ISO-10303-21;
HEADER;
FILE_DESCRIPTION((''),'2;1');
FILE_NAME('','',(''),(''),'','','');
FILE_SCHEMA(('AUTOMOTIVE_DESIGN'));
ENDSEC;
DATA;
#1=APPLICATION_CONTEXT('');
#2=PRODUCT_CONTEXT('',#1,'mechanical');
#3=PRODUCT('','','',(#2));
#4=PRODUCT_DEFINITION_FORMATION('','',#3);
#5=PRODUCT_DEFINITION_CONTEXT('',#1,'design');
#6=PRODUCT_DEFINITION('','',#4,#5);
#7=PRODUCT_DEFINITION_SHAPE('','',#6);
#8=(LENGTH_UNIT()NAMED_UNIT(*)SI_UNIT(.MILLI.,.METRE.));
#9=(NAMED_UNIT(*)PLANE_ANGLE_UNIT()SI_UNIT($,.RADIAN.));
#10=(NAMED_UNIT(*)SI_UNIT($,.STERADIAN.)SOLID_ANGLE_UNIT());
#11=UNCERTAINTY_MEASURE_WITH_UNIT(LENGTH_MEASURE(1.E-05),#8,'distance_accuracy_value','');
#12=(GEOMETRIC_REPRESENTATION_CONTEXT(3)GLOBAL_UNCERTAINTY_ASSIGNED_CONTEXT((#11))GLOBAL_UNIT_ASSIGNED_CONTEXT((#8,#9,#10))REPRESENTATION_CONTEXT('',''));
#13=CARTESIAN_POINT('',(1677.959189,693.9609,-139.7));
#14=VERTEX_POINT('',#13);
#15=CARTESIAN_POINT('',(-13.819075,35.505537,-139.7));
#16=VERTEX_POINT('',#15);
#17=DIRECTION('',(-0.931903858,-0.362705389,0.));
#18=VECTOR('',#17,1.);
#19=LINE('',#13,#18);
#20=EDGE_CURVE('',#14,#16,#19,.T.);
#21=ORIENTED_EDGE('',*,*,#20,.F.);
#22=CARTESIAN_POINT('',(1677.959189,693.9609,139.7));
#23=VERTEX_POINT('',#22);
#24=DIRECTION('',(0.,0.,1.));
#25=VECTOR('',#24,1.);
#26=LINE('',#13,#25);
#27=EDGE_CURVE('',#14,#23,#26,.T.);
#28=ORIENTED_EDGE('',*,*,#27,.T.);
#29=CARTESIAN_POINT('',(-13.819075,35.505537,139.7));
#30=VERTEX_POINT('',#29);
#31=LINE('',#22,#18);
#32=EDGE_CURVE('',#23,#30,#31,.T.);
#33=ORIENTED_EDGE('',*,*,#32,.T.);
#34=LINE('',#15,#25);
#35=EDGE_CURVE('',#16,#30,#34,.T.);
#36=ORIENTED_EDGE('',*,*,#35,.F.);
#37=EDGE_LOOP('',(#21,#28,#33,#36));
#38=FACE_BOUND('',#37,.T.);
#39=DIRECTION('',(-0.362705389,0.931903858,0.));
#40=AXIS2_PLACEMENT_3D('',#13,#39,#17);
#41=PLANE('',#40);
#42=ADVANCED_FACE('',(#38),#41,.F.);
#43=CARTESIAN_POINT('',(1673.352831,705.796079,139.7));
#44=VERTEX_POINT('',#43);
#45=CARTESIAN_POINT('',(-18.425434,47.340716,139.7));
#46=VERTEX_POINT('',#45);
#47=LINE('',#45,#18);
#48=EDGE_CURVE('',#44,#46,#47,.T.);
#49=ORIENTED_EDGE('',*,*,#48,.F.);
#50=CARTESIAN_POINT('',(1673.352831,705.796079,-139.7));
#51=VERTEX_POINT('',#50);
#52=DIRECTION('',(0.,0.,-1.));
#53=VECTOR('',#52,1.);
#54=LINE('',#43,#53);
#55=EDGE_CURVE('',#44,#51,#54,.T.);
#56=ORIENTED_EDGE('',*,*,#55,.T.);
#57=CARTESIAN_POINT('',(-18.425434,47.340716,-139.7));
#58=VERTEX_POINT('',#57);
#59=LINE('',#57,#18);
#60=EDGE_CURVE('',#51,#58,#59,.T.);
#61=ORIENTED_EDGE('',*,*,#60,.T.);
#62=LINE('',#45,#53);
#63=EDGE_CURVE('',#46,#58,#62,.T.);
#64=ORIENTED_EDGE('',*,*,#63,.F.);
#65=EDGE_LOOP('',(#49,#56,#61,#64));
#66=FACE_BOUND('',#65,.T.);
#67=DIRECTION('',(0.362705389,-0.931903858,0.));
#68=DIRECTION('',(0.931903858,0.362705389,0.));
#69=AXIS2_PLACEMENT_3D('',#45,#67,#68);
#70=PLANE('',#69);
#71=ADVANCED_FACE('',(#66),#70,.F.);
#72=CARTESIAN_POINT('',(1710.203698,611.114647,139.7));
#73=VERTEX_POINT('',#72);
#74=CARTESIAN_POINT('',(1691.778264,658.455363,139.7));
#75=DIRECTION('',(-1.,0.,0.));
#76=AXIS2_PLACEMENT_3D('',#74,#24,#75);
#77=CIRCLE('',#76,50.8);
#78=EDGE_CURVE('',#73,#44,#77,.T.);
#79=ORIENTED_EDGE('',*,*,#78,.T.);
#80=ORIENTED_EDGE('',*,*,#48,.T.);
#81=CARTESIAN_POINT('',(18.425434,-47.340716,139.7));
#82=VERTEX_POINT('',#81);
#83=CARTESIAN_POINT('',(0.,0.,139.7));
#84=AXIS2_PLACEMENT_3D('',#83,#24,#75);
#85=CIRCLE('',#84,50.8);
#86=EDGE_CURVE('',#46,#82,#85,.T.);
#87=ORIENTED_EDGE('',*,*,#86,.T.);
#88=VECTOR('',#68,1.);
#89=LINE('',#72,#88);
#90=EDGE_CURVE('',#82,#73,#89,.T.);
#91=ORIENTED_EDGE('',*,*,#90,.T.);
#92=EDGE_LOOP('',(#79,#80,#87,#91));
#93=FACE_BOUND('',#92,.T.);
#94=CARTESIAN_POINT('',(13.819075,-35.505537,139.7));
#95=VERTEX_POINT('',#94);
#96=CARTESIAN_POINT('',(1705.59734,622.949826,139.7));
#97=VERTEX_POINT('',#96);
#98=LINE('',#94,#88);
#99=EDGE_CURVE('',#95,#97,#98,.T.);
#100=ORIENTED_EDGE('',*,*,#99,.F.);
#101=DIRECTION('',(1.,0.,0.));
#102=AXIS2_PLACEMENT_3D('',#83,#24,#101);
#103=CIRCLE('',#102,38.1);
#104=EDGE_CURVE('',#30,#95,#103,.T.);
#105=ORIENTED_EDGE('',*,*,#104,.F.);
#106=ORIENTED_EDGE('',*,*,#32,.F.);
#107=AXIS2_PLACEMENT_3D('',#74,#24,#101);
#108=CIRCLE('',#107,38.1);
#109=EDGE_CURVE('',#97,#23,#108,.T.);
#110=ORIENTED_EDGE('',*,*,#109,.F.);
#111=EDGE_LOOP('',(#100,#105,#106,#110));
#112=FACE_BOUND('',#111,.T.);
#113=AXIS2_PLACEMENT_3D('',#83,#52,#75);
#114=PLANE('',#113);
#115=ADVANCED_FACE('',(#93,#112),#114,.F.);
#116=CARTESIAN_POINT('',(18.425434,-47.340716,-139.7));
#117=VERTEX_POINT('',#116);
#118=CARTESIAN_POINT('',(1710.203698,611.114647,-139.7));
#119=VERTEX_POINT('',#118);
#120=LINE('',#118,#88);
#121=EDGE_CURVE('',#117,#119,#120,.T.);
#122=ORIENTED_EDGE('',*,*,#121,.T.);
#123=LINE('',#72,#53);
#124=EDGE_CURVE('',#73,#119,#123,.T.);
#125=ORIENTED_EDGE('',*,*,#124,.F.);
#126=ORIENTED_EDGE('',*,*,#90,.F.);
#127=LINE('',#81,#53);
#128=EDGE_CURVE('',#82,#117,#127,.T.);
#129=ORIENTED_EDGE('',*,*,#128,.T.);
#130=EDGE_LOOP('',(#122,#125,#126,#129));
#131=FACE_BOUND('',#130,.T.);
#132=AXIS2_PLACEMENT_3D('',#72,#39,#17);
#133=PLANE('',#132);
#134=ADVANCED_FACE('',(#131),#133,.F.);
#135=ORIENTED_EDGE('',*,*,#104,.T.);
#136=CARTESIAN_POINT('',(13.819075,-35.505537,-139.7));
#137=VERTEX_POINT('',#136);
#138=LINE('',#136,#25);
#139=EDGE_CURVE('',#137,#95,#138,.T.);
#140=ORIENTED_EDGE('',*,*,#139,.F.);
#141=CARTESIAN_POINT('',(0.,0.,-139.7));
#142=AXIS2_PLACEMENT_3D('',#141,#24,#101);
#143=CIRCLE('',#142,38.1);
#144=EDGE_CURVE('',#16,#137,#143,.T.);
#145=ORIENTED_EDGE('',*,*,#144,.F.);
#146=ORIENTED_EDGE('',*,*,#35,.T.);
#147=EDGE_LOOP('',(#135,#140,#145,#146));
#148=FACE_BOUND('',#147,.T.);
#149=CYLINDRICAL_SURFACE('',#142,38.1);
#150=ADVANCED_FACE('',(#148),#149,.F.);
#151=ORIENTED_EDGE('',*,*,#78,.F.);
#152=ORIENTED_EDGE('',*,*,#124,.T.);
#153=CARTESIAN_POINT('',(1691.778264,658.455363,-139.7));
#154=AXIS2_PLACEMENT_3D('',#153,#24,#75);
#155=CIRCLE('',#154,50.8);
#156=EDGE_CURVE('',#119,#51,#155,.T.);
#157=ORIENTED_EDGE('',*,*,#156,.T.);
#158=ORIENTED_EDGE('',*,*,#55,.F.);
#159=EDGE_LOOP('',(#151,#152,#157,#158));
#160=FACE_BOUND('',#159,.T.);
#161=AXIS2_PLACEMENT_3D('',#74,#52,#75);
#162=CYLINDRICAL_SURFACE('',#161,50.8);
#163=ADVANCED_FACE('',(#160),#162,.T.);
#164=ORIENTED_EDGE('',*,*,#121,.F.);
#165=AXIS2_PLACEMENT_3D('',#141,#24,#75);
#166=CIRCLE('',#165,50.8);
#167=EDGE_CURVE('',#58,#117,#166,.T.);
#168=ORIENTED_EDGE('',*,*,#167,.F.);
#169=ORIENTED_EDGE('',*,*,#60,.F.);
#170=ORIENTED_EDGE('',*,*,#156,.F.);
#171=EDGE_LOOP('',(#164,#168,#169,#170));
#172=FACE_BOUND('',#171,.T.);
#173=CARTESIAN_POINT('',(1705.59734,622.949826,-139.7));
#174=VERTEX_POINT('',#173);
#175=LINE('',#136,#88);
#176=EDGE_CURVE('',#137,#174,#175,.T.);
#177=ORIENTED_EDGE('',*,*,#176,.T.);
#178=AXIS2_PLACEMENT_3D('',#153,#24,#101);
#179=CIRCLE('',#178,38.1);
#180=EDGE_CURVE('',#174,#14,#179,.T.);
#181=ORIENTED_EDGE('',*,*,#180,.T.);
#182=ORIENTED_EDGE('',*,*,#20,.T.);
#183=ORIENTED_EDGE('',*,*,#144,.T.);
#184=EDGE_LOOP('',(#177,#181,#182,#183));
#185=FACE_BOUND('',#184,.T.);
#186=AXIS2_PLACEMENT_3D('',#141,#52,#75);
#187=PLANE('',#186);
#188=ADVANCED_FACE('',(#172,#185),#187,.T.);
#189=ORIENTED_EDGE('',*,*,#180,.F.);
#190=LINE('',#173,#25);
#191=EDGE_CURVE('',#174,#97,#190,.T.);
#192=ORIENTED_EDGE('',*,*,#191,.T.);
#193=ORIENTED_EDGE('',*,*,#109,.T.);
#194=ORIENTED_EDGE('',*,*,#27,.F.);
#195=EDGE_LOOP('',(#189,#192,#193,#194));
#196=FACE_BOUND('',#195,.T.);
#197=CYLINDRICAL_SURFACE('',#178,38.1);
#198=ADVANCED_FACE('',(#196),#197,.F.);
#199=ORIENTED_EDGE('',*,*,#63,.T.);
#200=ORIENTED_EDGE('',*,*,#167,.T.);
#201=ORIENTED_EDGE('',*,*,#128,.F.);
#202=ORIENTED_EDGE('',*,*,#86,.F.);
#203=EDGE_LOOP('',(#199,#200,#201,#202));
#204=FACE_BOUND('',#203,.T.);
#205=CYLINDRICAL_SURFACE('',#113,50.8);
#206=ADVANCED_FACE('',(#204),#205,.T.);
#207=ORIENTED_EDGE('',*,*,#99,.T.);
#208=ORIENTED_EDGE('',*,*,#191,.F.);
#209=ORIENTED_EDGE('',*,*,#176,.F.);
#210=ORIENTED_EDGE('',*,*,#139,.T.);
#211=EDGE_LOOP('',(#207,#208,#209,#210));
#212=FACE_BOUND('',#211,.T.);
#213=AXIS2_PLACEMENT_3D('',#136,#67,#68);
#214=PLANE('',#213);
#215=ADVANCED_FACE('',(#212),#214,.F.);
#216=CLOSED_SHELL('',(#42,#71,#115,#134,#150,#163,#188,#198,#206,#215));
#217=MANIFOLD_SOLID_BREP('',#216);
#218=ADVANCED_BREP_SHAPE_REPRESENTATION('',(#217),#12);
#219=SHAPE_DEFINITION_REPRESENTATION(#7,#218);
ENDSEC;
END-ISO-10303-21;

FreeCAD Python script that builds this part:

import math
import FreeCAD as App
import Part
import Sketcher
Q = App.Units.Quantity

doc = App.newDocument("Part")
body = doc.addObject("PartDesign::Body", "Body")

# Sketch on XY plane
sketch1 = doc.addObject("Sketcher::SketchObject", "Sketch")
body.addObject(sketch1)
sketch1.AttachmentSupport = (doc.XY_Plane, [""])
sketch1.MapMode = "FlatFace"
sketch1.addGeometry([
    Part.LineSegment(App.Vector(1673.352831, 705.796079, 0), App.Vector(-18.425434, 47.340716, 0)),
    Part.ArcOfCircle(Part.Circle(App.Vector(0, 0, 0), App.Vector(0, 0, 1), 50.8), math.radians(111.266436), math.radians(291.266436)),
    Part.LineSegment(App.Vector(18.425434, -47.340716, 0), App.Vector(1710.203698, 611.114647, 0)),
    Part.ArcOfCircle(Part.Circle(App.Vector(1691.778264, 658.455363, 0), App.Vector(0, 0, 1), 50.8), math.radians(-68.733564), math.radians(111.266436)),
], False)
sketch1.addConstraint([
    Sketcher.Constraint("Tangent", 0, 2, 1, 1),
    Sketcher.Constraint("Tangent", 1, 2, 2, 1),
    Sketcher.Constraint("Tangent", 2, 2, 3, 1),
    Sketcher.Constraint("Tangent", 3, 2, 0, 1),
    Sketcher.Constraint("Coincident", 1, 3, -1, 1),
    Sketcher.Constraint("Equal", 1, 3),
    Sketcher.Constraint("Radius", 1, Q("2 in")),
    Sketcher.Constraint("Distance", 0, Q("1815.4 mm")),
    Sketcher.Constraint("DistanceX", -1, 1, 2, 2, Q("1710.203698 mm")),
])
pad1 = doc.addObject("PartDesign::Pad", "Pad")
body.addObject(pad1)
pad1.Profile = sketch1
pad1.Length = Q("11 in")
pad1.Midplane = True

# Sketch on XY plane
sketch2 = doc.addObject("Sketcher::SketchObject", "Sketch001")
body.addObject(sketch2)
sketch2.AttachmentSupport = (doc.XY_Plane, [""])
sketch2.MapMode = "FlatFace"
sketch2.AttachmentOffset = App.Placement(App.Vector(0, 0, 5.5 * 25.4), App.Rotation())
sketch2.addGeometry([
    Part.LineSegment(App.Vector(13.819075, -35.505537, 0), App.Vector(1705.59734, 622.949826, 0)),
    Part.ArcOfCircle(Part.Circle(App.Vector(1691.778264, 658.455363, 0), App.Vector(0, 0, 1), 38.1), math.radians(-68.733564), math.radians(111.266436)),
    Part.LineSegment(App.Vector(1677.959189, 693.9609, 0), App.Vector(-13.819075, 35.505537, 0)),
    Part.ArcOfCircle(Part.Circle(App.Vector(0, 0, 0), App.Vector(0, 0, 1), 38.1), math.radians(111.266436), math.radians(291.266436)),
], False)
sketch2.addConstraint([
    Sketcher.Constraint("Tangent", 0, 2, 1, 1),
    Sketcher.Constraint("Tangent", 1, 2, 2, 1),
    Sketcher.Constraint("Tangent", 2, 2, 3, 1),
    Sketcher.Constraint("Tangent", 3, 2, 0, 1),
    Sketcher.Constraint("Coincident", 3, 3, -1, 1),
    Sketcher.Constraint("Equal", 1, 3),
    Sketcher.Constraint("Radius", 1, Q("1.5 in")),
    Sketcher.Constraint("Distance", 0, Q("1815.4 mm")),
    Sketcher.Constraint("DistanceY", -1, 1, 1, 2, Q("693.9609 mm")),
])
pocket1 = doc.addObject("PartDesign::Pocket", "Pocket")
body.addObject(pocket1)
pocket1.Profile = sketch2
pocket1.Type = "ThroughAll"

doc.recompute()
